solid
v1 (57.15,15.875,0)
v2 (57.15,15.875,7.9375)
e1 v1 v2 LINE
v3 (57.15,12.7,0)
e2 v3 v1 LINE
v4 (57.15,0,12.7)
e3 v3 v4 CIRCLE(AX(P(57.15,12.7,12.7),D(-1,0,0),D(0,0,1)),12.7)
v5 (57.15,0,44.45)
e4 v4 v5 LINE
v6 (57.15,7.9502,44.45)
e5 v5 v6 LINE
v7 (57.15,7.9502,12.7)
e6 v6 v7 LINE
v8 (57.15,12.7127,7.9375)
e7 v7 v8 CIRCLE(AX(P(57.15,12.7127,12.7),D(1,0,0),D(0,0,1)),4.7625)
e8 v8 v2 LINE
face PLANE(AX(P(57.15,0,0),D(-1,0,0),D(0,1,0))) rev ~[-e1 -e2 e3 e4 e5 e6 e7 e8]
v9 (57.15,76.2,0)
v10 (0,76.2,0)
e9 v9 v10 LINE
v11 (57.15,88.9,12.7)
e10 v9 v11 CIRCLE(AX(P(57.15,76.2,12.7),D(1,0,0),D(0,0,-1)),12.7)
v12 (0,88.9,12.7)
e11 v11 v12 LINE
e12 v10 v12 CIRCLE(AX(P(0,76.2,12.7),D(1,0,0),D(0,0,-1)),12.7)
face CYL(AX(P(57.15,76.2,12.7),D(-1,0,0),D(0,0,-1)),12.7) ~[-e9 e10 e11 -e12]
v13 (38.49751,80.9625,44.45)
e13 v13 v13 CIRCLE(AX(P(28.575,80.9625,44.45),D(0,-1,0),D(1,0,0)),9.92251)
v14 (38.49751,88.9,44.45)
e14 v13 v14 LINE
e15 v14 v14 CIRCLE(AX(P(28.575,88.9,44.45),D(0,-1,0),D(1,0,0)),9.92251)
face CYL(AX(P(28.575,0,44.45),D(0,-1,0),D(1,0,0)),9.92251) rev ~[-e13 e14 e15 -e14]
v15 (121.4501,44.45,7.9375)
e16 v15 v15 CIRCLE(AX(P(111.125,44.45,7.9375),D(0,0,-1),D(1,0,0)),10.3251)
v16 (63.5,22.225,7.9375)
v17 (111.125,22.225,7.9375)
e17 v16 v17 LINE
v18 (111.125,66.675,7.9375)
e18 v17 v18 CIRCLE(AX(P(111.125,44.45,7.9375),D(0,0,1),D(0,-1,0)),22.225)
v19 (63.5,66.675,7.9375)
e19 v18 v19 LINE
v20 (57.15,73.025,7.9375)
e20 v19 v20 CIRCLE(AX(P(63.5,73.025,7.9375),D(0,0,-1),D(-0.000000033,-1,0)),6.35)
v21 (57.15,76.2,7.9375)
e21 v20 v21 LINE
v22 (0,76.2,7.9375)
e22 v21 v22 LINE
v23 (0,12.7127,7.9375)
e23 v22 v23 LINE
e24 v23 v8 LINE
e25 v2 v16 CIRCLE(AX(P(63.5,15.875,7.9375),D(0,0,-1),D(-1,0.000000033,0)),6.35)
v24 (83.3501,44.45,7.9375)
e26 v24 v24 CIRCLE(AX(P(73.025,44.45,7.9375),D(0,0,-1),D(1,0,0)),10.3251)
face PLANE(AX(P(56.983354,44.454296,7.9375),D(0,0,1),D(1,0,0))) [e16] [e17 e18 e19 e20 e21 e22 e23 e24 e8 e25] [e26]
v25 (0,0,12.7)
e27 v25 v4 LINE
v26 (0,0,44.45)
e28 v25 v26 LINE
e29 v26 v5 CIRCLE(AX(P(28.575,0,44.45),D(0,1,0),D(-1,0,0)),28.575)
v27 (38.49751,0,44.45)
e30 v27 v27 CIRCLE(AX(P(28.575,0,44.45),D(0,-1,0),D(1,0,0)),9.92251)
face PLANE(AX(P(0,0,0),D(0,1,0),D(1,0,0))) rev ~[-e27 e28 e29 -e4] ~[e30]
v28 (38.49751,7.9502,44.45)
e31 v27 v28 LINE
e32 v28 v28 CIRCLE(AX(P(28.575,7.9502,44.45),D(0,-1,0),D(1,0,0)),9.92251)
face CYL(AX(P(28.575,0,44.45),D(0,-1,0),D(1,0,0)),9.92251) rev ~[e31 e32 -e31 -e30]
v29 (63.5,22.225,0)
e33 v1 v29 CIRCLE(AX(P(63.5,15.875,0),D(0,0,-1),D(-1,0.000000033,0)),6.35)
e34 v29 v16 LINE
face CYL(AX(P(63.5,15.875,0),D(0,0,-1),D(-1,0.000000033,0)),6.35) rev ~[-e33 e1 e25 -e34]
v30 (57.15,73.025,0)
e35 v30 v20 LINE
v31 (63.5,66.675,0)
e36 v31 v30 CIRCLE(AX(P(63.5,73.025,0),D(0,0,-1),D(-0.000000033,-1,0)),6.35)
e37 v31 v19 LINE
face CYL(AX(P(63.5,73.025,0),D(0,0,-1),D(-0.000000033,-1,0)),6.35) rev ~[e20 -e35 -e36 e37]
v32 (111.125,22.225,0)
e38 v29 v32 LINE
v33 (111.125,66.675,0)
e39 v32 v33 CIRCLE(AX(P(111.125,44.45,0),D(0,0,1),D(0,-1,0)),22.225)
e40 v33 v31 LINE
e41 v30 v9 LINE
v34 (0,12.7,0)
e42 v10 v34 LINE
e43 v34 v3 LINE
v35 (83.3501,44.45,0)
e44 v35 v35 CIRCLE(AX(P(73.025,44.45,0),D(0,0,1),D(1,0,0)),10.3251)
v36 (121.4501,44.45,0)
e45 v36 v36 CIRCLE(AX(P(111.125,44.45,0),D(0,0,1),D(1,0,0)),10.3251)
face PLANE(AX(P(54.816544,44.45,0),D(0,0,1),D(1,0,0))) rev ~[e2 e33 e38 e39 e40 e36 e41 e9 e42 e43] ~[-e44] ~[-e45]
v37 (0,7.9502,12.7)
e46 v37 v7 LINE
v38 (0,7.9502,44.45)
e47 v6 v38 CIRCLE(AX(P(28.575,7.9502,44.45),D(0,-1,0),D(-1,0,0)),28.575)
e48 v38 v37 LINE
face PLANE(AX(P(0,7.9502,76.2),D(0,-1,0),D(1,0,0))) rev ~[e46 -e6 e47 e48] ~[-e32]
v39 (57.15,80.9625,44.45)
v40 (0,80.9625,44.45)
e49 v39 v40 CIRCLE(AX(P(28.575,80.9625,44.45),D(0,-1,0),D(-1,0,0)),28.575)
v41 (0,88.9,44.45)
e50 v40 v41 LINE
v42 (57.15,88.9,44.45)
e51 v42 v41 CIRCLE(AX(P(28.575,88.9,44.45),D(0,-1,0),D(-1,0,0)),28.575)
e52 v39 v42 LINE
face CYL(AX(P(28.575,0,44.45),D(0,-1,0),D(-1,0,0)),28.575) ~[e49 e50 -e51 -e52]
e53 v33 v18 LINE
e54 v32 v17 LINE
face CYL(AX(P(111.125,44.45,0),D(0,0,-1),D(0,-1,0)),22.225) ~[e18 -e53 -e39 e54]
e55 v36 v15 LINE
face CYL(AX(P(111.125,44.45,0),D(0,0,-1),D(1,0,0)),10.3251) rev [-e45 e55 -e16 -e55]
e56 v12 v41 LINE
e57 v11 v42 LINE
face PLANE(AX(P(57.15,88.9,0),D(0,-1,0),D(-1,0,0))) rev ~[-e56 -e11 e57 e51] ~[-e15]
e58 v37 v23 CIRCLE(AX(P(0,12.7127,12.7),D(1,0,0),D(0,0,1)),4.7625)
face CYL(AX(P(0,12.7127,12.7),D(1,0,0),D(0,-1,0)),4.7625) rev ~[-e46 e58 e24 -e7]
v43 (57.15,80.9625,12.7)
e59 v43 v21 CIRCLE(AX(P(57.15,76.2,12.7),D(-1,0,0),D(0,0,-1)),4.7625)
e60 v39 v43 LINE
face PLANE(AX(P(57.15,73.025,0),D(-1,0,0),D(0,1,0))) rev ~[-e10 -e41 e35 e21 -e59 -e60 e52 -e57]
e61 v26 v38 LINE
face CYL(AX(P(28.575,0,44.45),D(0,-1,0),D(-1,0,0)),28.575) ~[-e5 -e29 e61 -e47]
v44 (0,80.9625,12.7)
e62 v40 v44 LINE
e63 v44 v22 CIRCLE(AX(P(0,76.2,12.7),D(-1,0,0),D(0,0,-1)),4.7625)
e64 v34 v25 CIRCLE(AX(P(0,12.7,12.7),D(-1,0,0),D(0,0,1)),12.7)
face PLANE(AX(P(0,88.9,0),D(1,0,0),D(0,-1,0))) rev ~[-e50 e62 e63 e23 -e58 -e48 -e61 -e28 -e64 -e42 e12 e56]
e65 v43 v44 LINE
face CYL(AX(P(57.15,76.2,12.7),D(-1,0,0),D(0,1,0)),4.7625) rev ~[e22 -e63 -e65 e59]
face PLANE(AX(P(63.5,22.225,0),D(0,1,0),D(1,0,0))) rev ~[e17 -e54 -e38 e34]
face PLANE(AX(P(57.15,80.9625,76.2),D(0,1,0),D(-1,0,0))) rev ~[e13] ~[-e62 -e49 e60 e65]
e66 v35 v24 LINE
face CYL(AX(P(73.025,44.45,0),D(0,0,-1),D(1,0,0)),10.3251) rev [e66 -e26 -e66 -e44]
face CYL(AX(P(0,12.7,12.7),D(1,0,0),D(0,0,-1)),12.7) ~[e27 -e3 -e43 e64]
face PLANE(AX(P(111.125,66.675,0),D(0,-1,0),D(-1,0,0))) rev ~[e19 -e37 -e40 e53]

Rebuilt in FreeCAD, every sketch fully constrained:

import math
import FreeCAD as App
import Part
import Sketcher
from FreeCAD import Vector
Q = App.Units.Quantity


def edges_at(feature, points):
    """Names of the edges that pass closest to the given points."""
    edges = feature.Shape.Edges
    near = lambda p: min(range(len(edges)), key=lambda i: edges[i].distToShape(Part.Vertex(*p))[0])
    return sorted({f"Edge{near(p) + 1}" for p in points})

doc = App.newDocument("Part")
params = doc.addObject("Spreadsheet::Sheet", "Params")
for row, (alias, value) in enumerate([
    ("sketch1_radius", "0.25 in"),
    ("sketch1_diameter", "0.813 in"),
    ("sketch1_height", "3.5 in"),
    ("sketch1_radius2", "0.875 in"),
    ("sketch1_width", "2.25 in"),
    ("pad1_length", "3 in"),
    ("sketch2_radius", "0.25 in"),
    ("sketch2_radius2", "0.875 in"),
    ("sketch2_width", "2.25 in"),
    ("sketch2_width2", "1.875 in"),
    ("sketch2_height", "0.3125 in"),
    ("pocket1_length", "2.6875 in"),
    ("sketch3_radius", "1.125 in"),
    ("sketch3_height", "1.25 in"),
    ("fillet_radius", "0.5 in"),
    ("fillet2_radius", "0.1875 in"),
], start=1):
    params.set(f"A{row}", alias)
    params.set(f"B{row}", "=" + value)
    params.setAlias(f"B{row}", alias)

body = doc.addObject("PartDesign::Body", "Body")

sketch1 = doc.addObject("Sketcher::SketchObject", "Sketch")
body.addObject(sketch1)
sketch1.AttachmentSupport = (doc.XY_Plane, [""])
sketch1.MapMode = "FlatFace"
sketch1.addGeometry(Part.LineSegment(Vector(0, 89, 0), Vector(0, 0, 0)), False)
sketch1.addGeometry(Part.LineSegment(Vector(0, 0, 0), Vector(57, 0, 0)), False)
sketch1.addGeometry(Part.LineSegment(Vector(57, 0, 0), Vector(57, 16, 0)), False)
sketch1.addGeometry(Part.ArcOfCircle(Part.Circle(Vector(64, 16, 0), Vector(0, 0, 1), 6), math.radians(90), math.radians(180)), False)
sketch1.addGeometry(Part.LineSegment(Vector(64, 22, 0), Vector(111, 22, 0)), False)
sketch1.addGeometry(Part.ArcOfCircle(Part.Circle(Vector(111, 44, 0), Vector(0, 0, 1), 22), math.radians(-90), math.radians(90)), False)
sketch1.addGeometry(Part.LineSegment(Vector(111, 67, 0), Vector(64, 67, 0)), False)
sketch1.addGeometry(Part.ArcOfCircle(Part.Circle(Vector(64, 73, 0), Vector(0, 0, 1), 6), math.radians(-180), math.radians(-90)), False)
sketch1.addGeometry(Part.LineSegment(Vector(57, 73, 0), Vector(57, 89, 0)), False)
sketch1.addGeometry(Part.LineSegment(Vector(57, 89, 0), Vector(0, 89, 0)), False)
sketch1.addGeometry(Part.Circle(Vector(73, 44, 0), Vector(0, 0, 1), 10), False)
sketch1.addGeometry(Part.Circle(Vector(111, 44, 0), Vector(0, 0, 1), 10), False)
sketch1.addConstraint(Sketcher.Constraint("Coincident", 0, 2, 1, 1))
sketch1.addConstraint(Sketcher.Constraint("Coincident", 1, 2, 2, 1))
sketch1.addConstraint(Sketcher.Constraint("Tangent", 2, 2, 3, 2))
sketch1.addConstraint(Sketcher.Constraint("Tangent", 3, 1, 4, 1))
sketch1.addConstraint(Sketcher.Constraint("Tangent", 4, 2, 5, 1))
sketch1.addConstraint(Sketcher.Constraint("Tangent", 5, 2, 6, 1))
sketch1.addConstraint(Sketcher.Constraint("Tangent", 6, 2, 7, 2))
sketch1.addConstraint(Sketcher.Constraint("Tangent", 7, 1, 8, 1))
sketch1.addConstraint(Sketcher.Constraint("Coincident", 8, 2, 9, 1))
sketch1.addConstraint(Sketcher.Constraint("Coincident", 9, 2, 0, 1))
sketch1.addConstraint(Sketcher.Constraint("Vertical", 0))
sketch1.addConstraint(Sketcher.Constraint("Horizontal", 1))
sketch1.addConstraint(Sketcher.Constraint("Vertical", 2))
sketch1.addConstraint(Sketcher.Constraint("Horizontal", 4))
sketch1.addConstraint(Sketcher.Constraint("Horizontal", 6))
sketch1.addConstraint(Sketcher.Constraint("Vertical", 8))
sketch1.addConstraint(Sketcher.Constraint("Horizontal", 9))
sketch1.addConstraint(Sketcher.Constraint("Coincident", 0, 2, -1, 1))
sketch1.addConstraint(Sketcher.Constraint("Coincident", 11, 3, 5, 3))
sketch1.addConstraint(Sketcher.Constraint("Equal", 3, 7))
sketch1.addConstraint(Sketcher.Constraint("Equal", 10, 11))
sketch1.addConstraint(Sketcher.Constraint("Horizontal", 5, 3, 10, 3))
sketch1.addConstraint(Sketcher.Constraint("Vertical", 3, 3, 7, 3))
sketch1.addConstraint(Sketcher.Constraint("Equal", 2, 8))
sketch1.addConstraint(Sketcher.Constraint("Radius", 3, Q("0.25 in")))
sketch1.addConstraint(Sketcher.Constraint("Diameter", 10, Q("0.813 in")))
sketch1.addConstraint(Sketcher.Constraint("DistanceY", 0, 2, 0, 1, Q("3.5 in")))
sketch1.addConstraint(Sketcher.Constraint("Radius", 5, Q("0.875 in")))
sketch1.addConstraint(Sketcher.Constraint("DistanceX", 1, 1, 1, 2, Q("2.25 in")))
sketch1.addConstraint(Sketcher.Constraint("DistanceX", 10, 3, 5, 3, Q("1.5 in")))
sketch1.addConstraint(Sketcher.Constraint("DistanceX", 4, 1, 4, 2, Q("1.875 in")))
sketch1.setExpression("Constraints[24]", "Params.sketch1_radius")
sketch1.setExpression("Constraints[25]", "Params.sketch1_diameter")
sketch1.setExpression("Constraints[26]", "Params.sketch1_height")
sketch1.setExpression("Constraints[27]", "Params.sketch1_radius2")
sketch1.setExpression("Constraints[28]", "Params.sketch1_width")
pad1 = doc.addObject("PartDesign::Pad", "Pad")
body.addObject(pad1)
pad1.Profile = sketch1
pad1.setExpression("Length", "Params.pad1_length")

sketch2 = doc.addObject("Sketcher::SketchObject", "Sketch001")
body.addObject(sketch2)
sketch2.AttachmentSupport = (doc.XY_Plane, [""])
sketch2.MapMode = "FlatFace"
sketch2.AttachmentOffset = App.Placement(Vector(0, 0, 3 * 25.4), App.Rotation())
sketch2.addGeometry(Part.ArcOfCircle(Part.Circle(Vector(64, 16, 0), Vector(0, 0, 1), 6), math.radians(90), math.radians(180)), False)
sketch2.addGeometry(Part.LineSegment(Vector(64, 22, 0), Vector(111, 22, 0)), False)
sketch2.addGeometry(Part.ArcOfCircle(Part.Circle(Vector(111, 44, 0), Vector(0, 0, 1), 22), math.radians(-90), math.radians(90)), False)
sketch2.addGeometry(Part.LineSegment(Vector(111, 67, 0), Vector(64, 67, 0)), False)
sketch2.addGeometry(Part.ArcOfCircle(Part.Circle(Vector(64, 73, 0), Vector(0, 0, 1), 6), math.radians(-180), math.radians(-90)), False)
sketch2.addGeometry(Part.LineSegment(Vector(57, 73, 0), Vector(57, 81, 0)), False)
sketch2.addGeometry(Part.LineSegment(Vector(57, 81, 0), Vector(0, 81, 0)), False)
sketch2.addGeometry(Part.LineSegment(Vector(0, 81, 0), Vector(0, 8, 0)), False)
sketch2.addGeometry(Part.LineSegment(Vector(0, 8, 0), Vector(57, 8, 0)), False)
sketch2.addGeometry(Part.LineSegment(Vector(57, 8, 0), Vector(57, 16, 0)), False)
sketch2.addConstraint(Sketcher.Constraint("Tangent", 0, 1, 1, 1))
sketch2.addConstraint(Sketcher.Constraint("Tangent", 1, 2, 2, 1))
sketch2.addConstraint(Sketcher.Constraint("Tangent", 2, 2, 3, 1))
sketch2.addConstraint(Sketcher.Constraint("Tangent", 3, 2, 4, 2))
sketch2.addConstraint(Sketcher.Constraint("Tangent", 4, 1, 5, 1))
sketch2.addConstraint(Sketcher.Constraint("Coincident", 5, 2, 6, 1))
sketch2.addConstraint(Sketcher.Constraint("Coincident", 6, 2, 7, 1))
sketch2.addConstraint(Sketcher.Constraint("Coincident", 7, 2, 8, 1))
sketch2.addConstraint(Sketcher.Constraint("Coincident", 8, 2, 9, 1))
sketch2.addConstraint(Sketcher.Constraint("Tangent", 9, 2, 0, 2))
sketch2.addConstraint(Sketcher.Constraint("Horizontal", 1))
sketch2.addConstraint(Sketcher.Constraint("Horizontal", 3))
sketch2.addConstraint(Sketcher.Constraint("Vertical", 5))
sketch2.addConstraint(Sketcher.Constraint("Horizontal", 6))
sketch2.addConstraint(Sketcher.Constraint("Vertical", 7))
sketch2.addConstraint(Sketcher.Constraint("Horizontal", 8))
sketch2.addConstraint(Sketcher.Constraint("Vertical", 9))
sketch2.addConstraint(Sketcher.Constraint("Equal", 0, 4))
sketch2.addConstraint(Sketcher.Constraint("PointOnObject", 6, 2, -2))
sketch2.addConstraint(Sketcher.Constraint("Vertical", 0, 3, 4, 3))
sketch2.addConstraint(Sketcher.Constraint("Radius", 0, Q("0.25 in")))
sketch2.addConstraint(Sketcher.Constraint("Radius", 2, Q("0.875 in")))
sketch2.addConstraint(Sketcher.Constraint("DistanceX", 6, 2, 6, 1, Q("2.25 in")))
sketch2.addConstraint(Sketcher.Constraint("DistanceX", 1, 1, 1, 2, Q("1.875 in")))
sketch2.addConstraint(Sketcher.Constraint("DistanceY", 5, 1, 5, 2, Q("0.3125 in")))
sketch2.addConstraint(Sketcher.Constraint("DistanceY", 9, 1, 9, 2, Q("0.312 in")))
sketch2.addConstraint(Sketcher.Constraint("DistanceY", -1, 1, 2, 3, Q("1.75 in")))
sketch2.setExpression("Constraints[20]", "Params.sketch2_radius")
sketch2.setExpression("Constraints[21]", "Params.sketch2_radius2")
sketch2.setExpression("Constraints[22]", "Params.sketch2_width")
sketch2.setExpression("Constraints[23]", "Params.sketch2_width2")
sketch2.setExpression("Constraints[24]", "Params.sketch2_height")
pocket1 = doc.addObject("PartDesign::Pocket", "Pocket")
body.addObject(pocket1)
pocket1.Profile = sketch2
pocket1.setExpression("Length", "Params.pocket1_length")

sketch3 = doc.addObject("Sketcher::SketchObject", "Sketch002")
body.addObject(sketch3)
sketch3.AttachmentSupport = (doc.XZ_Plane, [""])
sketch3.MapMode = "FlatFace"
sketch3.addGeometry(Part.Circle(Vector(29, 44, 0), Vector(0, 0, 1), 10), False)
sketch3.addGeometry(Part.LineSegment(Vector(0, 76, 0), Vector(0, 44, 0)), False)
sketch3.addGeometry(Part.ArcOfCircle(Part.Circle(Vector(29, 44, 0), Vector(0, 0, 1), 29), math.radians(0), math.radians(180)), False)
sketch3.addGeometry(Part.LineSegment(Vector(57, 44, 0), Vector(57, 76, 0)), False)
sketch3.addGeometry(Part.LineSegment(Vector(57, 76, 0), Vector(0, 76, 0)), False)
sketch3.addConstraint(Sketcher.Constraint("Tangent", 1, 2, 2, 2))
sketch3.addConstraint(Sketcher.Constraint("Tangent", 2, 1, 3, 1))
sketch3.addConstraint(Sketcher.Constraint("Coincident", 3, 2, 4, 1))
sketch3.addConstraint(Sketcher.Constraint("Coincident", 4, 2, 1, 1))
sketch3.addConstraint(Sketcher.Constraint("Vertical", 1))
sketch3.addConstraint(Sketcher.Constraint("Vertical", 3))
sketch3.addConstraint(Sketcher.Constraint("Horizontal", 4))
sketch3.addConstraint(Sketcher.Constraint("Coincident", 2, 3, 0, 3))
sketch3.addConstraint(Sketcher.Constraint("PointOnObject", 1, 2, -2))
sketch3.addConstraint(Sketcher.Constraint("DistanceY", -1, 1, 3, 2, Q("3 in")))
sketch3.addConstraint(Sketcher.Constraint("Radius", 2, Q("1.125 in")))
sketch3.addConstraint(Sketcher.Constraint("Diameter", 0, Q("0.7813 in")))
sketch3.addConstraint(Sketcher.Constraint("DistanceY", 1, 2, 1, 1, Q("1.25 in")))
sketch3.setExpression("Constraints[10]", "Params.sketch3_radius")
sketch3.setExpression("Constraints[12]", "Params.sketch3_height")
pocket2 = doc.addObject("PartDesign::Pocket", "Pocket001")
body.addObject(pocket2)
pocket2.Profile = sketch3
pocket2.Type = "ThroughAll"
doc.recompute()

fillet = doc.addObject("PartDesign::Fillet", "Fillet")
body.addObject(fillet)
fillet.Base = (pocket2, edges_at(pocket2, [(28.575, 0, 0), (28.575, 88.9, 0)]))
fillet.setExpression("Radius", "Params.fillet_radius")
doc.recompute()

fillet2 = doc.addObject("PartDesign::Fillet", "Fillet001")
body.addObject(fillet2)
fillet2.Base = (fillet, edges_at(fillet, [(28.575, 7.95, 7.938), (28.575, 80.963, 7.938)]))
fillet2.setExpression("Radius", "Params.fillet2_radius")

doc.recompute()
